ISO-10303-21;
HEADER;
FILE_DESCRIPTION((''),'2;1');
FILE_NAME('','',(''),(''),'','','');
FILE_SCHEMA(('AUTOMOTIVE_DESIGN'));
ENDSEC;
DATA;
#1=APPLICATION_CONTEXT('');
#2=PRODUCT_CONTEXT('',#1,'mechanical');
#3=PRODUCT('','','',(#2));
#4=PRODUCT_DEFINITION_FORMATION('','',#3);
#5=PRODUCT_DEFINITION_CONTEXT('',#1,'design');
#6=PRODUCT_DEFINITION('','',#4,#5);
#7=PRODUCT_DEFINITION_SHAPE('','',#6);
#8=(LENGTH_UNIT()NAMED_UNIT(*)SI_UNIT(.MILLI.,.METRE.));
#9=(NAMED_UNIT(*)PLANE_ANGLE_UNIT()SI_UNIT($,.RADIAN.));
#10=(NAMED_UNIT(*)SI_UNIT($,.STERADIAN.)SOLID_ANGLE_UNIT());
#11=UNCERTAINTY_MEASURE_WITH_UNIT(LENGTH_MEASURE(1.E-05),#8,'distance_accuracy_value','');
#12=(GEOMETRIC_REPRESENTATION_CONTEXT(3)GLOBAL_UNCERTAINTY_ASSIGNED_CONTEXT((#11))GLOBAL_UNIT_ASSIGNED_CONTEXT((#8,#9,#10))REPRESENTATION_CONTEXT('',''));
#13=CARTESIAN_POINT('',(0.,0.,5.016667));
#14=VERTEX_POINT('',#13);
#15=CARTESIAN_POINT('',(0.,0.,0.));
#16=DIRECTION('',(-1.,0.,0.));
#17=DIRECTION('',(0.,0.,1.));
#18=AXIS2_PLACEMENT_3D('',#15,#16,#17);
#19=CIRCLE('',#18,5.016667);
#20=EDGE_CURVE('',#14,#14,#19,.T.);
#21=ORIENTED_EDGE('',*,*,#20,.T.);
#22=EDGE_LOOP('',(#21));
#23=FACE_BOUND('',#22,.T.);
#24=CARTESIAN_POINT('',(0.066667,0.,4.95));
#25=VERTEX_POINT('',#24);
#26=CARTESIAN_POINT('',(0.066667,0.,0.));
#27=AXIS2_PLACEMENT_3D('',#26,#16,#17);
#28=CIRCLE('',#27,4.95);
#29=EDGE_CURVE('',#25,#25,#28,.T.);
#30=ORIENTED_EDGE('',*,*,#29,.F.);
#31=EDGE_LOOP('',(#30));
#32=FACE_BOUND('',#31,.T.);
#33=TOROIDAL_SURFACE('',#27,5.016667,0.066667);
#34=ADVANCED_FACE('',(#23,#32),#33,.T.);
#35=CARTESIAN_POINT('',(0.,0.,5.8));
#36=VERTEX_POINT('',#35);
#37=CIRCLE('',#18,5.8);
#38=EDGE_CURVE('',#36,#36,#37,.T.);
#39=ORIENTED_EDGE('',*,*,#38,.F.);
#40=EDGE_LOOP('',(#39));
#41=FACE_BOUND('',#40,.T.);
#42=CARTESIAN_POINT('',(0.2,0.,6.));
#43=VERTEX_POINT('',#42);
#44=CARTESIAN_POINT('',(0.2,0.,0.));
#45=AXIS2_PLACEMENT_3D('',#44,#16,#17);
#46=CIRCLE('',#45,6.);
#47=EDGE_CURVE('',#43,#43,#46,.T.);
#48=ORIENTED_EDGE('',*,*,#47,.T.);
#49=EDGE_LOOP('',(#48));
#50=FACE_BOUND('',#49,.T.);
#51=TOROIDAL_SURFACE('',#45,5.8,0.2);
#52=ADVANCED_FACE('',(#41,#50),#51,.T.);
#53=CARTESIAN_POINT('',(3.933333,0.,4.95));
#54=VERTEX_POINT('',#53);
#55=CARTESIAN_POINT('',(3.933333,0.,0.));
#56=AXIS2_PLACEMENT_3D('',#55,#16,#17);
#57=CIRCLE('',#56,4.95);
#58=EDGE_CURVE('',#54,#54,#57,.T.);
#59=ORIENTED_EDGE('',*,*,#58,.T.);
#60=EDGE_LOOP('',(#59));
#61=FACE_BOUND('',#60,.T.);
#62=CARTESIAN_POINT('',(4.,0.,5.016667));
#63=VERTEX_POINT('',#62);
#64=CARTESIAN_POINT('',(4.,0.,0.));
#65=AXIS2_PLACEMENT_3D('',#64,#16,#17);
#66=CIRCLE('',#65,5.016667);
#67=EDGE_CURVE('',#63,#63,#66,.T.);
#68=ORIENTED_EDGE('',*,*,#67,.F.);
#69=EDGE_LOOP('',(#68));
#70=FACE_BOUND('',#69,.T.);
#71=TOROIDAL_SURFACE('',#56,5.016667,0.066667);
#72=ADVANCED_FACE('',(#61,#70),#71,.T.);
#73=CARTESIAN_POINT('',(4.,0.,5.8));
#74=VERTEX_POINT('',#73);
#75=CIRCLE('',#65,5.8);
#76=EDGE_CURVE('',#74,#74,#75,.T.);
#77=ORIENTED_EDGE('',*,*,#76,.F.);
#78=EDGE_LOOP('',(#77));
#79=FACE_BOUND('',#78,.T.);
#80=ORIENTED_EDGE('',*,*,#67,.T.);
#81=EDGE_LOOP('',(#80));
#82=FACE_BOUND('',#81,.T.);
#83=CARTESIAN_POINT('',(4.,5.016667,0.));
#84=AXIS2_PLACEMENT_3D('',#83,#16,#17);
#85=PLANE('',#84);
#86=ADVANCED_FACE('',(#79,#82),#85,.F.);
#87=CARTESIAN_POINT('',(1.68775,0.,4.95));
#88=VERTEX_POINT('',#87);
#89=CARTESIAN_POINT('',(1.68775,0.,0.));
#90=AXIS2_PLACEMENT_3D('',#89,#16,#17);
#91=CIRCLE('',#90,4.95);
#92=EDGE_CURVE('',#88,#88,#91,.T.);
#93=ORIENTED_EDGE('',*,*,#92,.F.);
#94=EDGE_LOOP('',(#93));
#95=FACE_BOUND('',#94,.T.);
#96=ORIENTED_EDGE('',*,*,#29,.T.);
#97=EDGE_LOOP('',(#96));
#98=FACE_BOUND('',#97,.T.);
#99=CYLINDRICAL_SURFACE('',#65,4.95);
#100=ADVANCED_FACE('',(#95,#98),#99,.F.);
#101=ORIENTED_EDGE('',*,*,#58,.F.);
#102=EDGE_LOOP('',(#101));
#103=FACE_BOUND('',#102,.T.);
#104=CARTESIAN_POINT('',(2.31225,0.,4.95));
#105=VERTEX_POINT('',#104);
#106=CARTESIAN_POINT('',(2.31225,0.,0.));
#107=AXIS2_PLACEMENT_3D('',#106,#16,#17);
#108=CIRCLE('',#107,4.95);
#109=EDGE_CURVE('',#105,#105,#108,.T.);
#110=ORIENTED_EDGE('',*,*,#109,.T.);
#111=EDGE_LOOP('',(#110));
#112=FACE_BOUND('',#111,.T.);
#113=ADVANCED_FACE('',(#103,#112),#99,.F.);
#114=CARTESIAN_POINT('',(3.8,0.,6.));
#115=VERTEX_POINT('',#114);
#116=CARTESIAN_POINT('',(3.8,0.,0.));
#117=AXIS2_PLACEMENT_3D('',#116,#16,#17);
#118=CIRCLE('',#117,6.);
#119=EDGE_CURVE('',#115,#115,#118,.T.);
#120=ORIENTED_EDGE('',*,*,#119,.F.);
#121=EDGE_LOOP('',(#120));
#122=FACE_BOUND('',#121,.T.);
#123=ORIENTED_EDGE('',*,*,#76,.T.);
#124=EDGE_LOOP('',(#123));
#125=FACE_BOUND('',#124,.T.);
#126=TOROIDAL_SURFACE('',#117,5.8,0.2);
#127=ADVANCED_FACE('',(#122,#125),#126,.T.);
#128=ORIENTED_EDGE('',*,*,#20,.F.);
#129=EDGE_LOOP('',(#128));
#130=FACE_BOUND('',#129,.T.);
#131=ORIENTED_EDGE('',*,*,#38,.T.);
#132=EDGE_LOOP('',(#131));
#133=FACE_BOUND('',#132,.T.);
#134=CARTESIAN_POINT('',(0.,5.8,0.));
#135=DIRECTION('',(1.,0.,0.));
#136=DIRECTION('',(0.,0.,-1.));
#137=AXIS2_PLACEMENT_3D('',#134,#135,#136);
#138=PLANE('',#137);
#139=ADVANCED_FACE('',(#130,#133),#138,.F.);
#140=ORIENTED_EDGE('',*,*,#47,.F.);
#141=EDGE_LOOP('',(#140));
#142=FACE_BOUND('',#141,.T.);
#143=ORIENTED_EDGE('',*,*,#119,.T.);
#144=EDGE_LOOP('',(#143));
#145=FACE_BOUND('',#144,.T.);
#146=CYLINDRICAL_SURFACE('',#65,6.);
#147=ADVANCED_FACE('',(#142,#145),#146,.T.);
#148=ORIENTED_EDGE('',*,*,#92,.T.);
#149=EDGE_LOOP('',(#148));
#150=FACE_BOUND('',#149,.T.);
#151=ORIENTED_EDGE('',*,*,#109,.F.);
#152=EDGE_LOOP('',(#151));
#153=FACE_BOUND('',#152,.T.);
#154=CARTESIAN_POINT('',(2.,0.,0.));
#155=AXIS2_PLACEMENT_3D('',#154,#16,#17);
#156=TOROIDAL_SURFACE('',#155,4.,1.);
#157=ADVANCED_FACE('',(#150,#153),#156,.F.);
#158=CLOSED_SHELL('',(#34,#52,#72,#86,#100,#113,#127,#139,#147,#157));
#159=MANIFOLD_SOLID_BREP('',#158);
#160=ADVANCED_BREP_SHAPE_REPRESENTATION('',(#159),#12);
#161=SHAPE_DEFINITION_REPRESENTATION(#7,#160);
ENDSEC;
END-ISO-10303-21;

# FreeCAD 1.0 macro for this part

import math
import FreeCAD as App
import Part
import Sketcher

doc = App.newDocument("Part")
body = doc.addObject("PartDesign::Body", "Body")

sketch1 = doc.addObject("Sketcher::SketchObject", "Sketch")
body.addObject(sketch1)
sketch1.AttachmentSupport = (doc.XY_Plane, [""])
sketch1.MapMode = "FlatFace"
sketch1.addGeometry(Part.LineSegment(App.Vector(0.07, 4.95, 0), App.Vector(1.69, 4.95, 0)), False)
sketch1.addGeometry(Part.ArcOfCircle(Part.Circle(App.Vector(2, 4, 0), App.Vector(0, 0, 1), 1), math.radians(72), math.radians(108)), False)
sketch1.addGeometry(Part.LineSegment(App.Vector(2.31, 4.95, 0), App.Vector(3.93, 4.95, 0)), False)
sketch1.addGeometry(Part.ArcOfCircle(Part.Circle(App.Vector(3.93, 5.02, 0), App.Vector(0, 0, 1), 0.07), math.radians(-90), math.radians(0)), False)
sketch1.addGeometry(Part.LineSegment(App.Vector(4, 5.02, 0), App.Vector(4, 5.8, 0)), False)
sketch1.addGeometry(Part.ArcOfCircle(Part.Circle(App.Vector(3.8, 5.8, 0), App.Vector(0, 0, 1), 0.2), math.radians(0), math.radians(90)), False)
sketch1.addGeometry(Part.LineSegment(App.Vector(3.8, 6, 0), App.Vector(0.2, 6, 0)), False)
sketch1.addGeometry(Part.ArcOfCircle(Part.Circle(App.Vector(0.2, 5.8, 0), App.Vector(0, 0, 1), 0.2), math.radians(90), math.radians(180)), False)
sketch1.addGeometry(Part.LineSegment(App.Vector(0, 5.8, 0), App.Vector(0, 5.02, 0)), False)
sketch1.addGeometry(Part.ArcOfCircle(Part.Circle(App.Vector(0.07, 5.02, 0), App.Vector(0, 0, 1), 0.07), math.radians(-180), math.radians(-90)), False)
sketch1.addConstraint(Sketcher.Constraint("Coincident", 0, 2, 1, 2))
sketch1.addConstraint(Sketcher.Constraint("Coincident", 1, 1, 2, 1))
sketch1.addConstraint(Sketcher.Constraint("Tangent", 2, 2, 3, 1))
sketch1.addConstraint(Sketcher.Constraint("Tangent", 3, 2, 4, 1))
sketch1.addConstraint(Sketcher.Constraint("Tangent", 4, 2, 5, 1))
sketch1.addConstraint(Sketcher.Constraint("Tangent", 5, 2, 6, 1))
sketch1.addConstraint(Sketcher.Constraint("Tangent", 6, 2, 7, 1))
sketch1.addConstraint(Sketcher.Constraint("Tangent", 7, 2, 8, 1))
sketch1.addConstraint(Sketcher.Constraint("Tangent", 8, 2, 9, 1))
sketch1.addConstraint(Sketcher.Constraint("Tangent", 9, 2, 0, 1))
sketch1.addConstraint(Sketcher.Constraint("Horizontal", 0))
sketch1.addConstraint(Sketcher.Constraint("Horizontal", 2))
sketch1.addConstraint(Sketcher.Constraint("Vertical", 4))
sketch1.addConstraint(Sketcher.Constraint("Horizontal", 6))
sketch1.addConstraint(Sketcher.Constraint("Vertical", 8))
sketch1.addConstraint(Sketcher.Constraint("Equal", 5, 7))
sketch1.addConstraint(Sketcher.Constraint("Equal", 3, 9))
sketch1.addConstraint(Sketcher.Constraint("PointOnObject", 7, 2, -2))
sketch1.addConstraint(Sketcher.Constraint("Horizontal", 3, 3, 9, 3))
sketch1.addConstraint(Sketcher.Constraint("Equal", 0, 2))
sketch1.addConstraint(Sketcher.Constraint("Radius", 1, 1.0))
sketch1.addConstraint(Sketcher.Constraint("Radius", 5, 0.2))
sketch1.addConstraint(Sketcher.Constraint("DistanceX", 6, 2, 6, 1, 3.6))
sketch1.addConstraint(Sketcher.Constraint("DistanceY", -1, 1, 1, 3, 4.0))
sketch1.addConstraint(Sketcher.Constraint("DistanceY", -1, 1, 5, 2, 6.0))
sketch1.addConstraint(Sketcher.Constraint("DistanceY", -1, 1, 0, 2, 4.95))
sketch1.addConstraint(Sketcher.Constraint("Radius", 3, 0.066667))
revolution = doc.addObject("PartDesign::Revolution", "Revolution")
body.addObject(revolution)
revolution.Profile = sketch1
revolution.ReferenceAxis = (sketch1, ["H_Axis"])
revolution.Angle = 360

doc.recompute()
